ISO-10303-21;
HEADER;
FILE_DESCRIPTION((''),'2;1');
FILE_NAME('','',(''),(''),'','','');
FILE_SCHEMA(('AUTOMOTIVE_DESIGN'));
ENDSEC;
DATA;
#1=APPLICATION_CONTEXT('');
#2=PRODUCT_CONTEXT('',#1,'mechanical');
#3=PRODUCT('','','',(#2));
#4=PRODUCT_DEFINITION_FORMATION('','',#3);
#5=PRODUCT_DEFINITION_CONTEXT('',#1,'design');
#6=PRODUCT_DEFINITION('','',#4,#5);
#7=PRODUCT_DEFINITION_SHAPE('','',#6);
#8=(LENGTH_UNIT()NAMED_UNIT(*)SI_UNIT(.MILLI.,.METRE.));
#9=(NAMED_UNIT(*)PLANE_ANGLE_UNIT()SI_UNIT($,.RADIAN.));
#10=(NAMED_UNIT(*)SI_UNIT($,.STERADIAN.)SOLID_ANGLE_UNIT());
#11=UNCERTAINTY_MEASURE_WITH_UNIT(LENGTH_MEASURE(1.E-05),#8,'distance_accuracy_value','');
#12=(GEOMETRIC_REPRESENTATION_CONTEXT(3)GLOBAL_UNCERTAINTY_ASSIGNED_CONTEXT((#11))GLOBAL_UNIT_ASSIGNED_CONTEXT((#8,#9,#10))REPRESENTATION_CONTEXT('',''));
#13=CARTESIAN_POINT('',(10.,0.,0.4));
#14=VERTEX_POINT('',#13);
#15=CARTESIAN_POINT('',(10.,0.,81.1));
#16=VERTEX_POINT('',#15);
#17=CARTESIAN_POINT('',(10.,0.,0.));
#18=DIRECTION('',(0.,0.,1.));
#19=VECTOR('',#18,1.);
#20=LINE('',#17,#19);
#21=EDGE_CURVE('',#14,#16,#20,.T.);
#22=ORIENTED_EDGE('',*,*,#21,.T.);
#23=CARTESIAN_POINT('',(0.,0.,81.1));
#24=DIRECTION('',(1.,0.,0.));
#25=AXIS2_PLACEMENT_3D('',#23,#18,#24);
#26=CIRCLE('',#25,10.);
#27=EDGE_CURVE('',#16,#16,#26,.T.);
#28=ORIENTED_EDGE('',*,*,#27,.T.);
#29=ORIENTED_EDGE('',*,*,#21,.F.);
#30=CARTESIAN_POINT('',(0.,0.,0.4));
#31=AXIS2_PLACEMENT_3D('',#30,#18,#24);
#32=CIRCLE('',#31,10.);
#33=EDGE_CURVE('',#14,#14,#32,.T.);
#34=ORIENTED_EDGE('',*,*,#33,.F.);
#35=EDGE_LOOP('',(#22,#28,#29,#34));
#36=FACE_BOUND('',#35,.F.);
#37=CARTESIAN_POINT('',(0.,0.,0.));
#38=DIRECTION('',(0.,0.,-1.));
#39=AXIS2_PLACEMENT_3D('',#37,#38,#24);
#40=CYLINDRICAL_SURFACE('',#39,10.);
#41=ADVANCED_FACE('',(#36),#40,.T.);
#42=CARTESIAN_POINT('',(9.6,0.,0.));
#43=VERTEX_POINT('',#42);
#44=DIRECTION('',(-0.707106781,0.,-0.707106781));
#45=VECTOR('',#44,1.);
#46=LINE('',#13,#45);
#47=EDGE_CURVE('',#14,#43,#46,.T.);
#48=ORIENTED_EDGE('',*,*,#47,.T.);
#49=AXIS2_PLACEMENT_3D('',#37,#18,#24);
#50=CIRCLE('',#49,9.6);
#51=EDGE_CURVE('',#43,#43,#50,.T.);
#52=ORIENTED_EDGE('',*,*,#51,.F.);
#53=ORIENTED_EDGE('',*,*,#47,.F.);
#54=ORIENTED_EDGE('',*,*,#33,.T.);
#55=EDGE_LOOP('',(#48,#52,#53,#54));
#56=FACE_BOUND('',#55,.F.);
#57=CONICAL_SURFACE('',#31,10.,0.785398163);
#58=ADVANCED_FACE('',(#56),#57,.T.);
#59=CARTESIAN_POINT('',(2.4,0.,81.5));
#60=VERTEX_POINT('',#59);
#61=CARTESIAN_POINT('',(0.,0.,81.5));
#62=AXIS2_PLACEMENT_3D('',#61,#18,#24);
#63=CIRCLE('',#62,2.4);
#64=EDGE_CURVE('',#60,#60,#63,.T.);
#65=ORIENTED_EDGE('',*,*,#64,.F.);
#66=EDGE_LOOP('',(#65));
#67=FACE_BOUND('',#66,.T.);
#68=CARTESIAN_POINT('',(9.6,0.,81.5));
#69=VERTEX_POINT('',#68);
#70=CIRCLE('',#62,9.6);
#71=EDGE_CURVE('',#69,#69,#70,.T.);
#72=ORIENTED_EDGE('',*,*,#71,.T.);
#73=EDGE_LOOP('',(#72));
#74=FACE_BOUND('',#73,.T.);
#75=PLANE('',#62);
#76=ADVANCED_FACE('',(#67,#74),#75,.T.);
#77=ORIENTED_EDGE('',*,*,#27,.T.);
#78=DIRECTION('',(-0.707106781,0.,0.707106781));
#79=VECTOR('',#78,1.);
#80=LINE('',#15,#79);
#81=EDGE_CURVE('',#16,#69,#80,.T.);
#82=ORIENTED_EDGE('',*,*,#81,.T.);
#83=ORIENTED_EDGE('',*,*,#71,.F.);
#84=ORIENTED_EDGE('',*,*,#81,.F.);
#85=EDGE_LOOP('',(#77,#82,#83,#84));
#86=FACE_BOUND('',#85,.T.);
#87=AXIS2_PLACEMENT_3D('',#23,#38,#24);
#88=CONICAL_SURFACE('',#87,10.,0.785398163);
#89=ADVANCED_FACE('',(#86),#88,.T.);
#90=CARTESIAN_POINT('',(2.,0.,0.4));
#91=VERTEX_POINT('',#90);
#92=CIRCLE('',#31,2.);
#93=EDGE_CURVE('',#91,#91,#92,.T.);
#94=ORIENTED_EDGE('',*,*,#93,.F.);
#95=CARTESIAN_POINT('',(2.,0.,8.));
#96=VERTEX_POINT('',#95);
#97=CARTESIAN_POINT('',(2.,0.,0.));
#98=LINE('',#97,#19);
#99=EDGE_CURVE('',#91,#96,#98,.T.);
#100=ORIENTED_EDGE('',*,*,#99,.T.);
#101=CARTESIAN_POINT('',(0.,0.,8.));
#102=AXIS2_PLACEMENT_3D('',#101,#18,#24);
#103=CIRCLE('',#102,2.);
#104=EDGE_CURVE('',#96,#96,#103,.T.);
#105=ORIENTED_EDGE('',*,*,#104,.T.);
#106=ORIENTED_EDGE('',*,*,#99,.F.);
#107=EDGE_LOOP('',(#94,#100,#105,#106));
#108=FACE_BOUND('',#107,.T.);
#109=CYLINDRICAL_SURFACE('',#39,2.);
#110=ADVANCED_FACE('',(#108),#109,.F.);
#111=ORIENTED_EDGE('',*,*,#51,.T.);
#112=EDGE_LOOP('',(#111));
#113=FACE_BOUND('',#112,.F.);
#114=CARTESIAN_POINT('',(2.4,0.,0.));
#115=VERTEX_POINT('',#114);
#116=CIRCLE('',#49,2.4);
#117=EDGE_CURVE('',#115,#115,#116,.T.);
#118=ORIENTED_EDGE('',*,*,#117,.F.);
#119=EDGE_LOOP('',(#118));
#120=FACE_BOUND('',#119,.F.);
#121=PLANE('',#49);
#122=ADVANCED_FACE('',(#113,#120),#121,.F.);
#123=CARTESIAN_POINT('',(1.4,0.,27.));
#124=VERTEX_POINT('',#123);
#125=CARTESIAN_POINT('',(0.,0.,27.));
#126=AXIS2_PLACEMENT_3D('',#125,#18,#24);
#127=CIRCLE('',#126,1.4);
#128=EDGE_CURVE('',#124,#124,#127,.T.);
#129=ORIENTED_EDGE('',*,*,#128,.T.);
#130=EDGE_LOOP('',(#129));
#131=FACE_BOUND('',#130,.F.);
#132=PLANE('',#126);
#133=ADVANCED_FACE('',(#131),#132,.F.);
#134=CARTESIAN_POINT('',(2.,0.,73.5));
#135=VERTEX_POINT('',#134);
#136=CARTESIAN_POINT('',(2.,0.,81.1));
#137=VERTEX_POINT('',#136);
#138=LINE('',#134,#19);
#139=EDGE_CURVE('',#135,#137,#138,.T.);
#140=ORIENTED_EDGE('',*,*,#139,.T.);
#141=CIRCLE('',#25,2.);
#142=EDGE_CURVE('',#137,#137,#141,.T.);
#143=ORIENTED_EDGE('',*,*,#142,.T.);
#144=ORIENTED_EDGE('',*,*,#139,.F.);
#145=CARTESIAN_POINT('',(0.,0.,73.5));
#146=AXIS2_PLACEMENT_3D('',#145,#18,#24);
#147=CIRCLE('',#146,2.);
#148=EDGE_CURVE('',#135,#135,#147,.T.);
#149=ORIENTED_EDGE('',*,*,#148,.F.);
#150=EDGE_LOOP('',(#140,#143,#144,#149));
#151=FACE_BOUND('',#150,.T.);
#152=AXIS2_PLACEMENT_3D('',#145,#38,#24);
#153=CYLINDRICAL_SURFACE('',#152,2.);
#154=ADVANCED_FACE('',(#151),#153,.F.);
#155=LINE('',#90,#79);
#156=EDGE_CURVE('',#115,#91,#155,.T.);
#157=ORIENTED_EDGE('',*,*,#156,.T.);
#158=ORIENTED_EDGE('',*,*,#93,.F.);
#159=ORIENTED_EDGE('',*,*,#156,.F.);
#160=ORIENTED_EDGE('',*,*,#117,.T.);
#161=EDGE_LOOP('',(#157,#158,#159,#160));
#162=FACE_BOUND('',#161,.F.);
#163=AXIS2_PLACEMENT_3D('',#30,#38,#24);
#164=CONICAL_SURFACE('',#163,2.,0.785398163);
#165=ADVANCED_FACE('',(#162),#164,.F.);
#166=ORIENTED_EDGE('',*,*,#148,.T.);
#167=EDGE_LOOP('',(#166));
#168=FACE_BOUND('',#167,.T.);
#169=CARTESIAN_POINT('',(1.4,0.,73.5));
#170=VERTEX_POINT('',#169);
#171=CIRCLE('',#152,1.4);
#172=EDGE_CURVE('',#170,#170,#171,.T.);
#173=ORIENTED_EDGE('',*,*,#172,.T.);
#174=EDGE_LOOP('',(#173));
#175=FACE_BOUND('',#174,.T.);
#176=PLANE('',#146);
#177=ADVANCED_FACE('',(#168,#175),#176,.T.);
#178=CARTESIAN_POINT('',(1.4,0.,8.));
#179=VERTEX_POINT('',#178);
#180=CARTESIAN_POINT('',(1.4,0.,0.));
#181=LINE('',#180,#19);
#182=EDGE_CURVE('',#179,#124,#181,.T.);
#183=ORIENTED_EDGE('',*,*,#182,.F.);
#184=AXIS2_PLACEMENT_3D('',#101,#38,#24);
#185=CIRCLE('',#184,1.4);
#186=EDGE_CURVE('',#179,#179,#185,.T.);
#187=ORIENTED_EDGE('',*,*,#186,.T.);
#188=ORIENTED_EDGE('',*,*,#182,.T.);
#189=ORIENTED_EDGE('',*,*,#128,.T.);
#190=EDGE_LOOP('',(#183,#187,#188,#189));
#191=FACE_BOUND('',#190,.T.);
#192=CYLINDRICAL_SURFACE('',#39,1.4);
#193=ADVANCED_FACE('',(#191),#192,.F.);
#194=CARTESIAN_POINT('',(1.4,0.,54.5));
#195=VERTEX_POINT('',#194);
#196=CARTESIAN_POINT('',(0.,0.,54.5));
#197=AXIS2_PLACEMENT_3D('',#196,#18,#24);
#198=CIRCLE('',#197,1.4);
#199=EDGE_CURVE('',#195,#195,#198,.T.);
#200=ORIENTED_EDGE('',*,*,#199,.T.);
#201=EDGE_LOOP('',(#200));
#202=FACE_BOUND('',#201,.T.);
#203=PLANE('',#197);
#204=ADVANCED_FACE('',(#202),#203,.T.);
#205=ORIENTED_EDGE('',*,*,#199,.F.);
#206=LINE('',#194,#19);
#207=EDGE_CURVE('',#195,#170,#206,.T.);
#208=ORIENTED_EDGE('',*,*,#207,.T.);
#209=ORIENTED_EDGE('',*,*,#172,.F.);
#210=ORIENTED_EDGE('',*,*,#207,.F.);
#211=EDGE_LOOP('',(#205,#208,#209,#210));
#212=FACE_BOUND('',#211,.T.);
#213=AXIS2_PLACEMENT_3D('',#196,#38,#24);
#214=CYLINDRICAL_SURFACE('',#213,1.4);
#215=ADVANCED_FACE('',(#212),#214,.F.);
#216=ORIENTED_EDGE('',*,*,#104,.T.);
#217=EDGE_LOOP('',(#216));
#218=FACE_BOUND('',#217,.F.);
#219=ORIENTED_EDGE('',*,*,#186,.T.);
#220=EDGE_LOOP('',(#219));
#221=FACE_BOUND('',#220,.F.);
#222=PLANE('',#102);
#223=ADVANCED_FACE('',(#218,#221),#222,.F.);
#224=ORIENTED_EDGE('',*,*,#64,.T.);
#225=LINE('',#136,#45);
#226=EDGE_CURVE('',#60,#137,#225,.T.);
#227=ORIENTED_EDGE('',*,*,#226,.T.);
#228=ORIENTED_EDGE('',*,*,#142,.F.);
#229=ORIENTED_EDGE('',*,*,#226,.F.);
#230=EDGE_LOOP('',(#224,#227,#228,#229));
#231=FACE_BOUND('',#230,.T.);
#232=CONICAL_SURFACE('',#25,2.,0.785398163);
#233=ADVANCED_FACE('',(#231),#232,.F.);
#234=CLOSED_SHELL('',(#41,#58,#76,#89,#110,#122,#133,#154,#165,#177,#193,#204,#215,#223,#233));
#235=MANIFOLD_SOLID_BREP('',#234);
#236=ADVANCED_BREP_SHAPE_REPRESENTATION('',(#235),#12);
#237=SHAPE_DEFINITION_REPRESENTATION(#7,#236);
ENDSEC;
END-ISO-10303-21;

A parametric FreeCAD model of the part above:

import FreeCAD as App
import Part
import Sketcher
from FreeCAD import Vector
Q = App.Units.Quantity


def edges_at(feature, points):
    """Names of the edges that pass closest to the given points."""
    edges = feature.Shape.Edges
    near = lambda p: min(range(len(edges)), key=lambda i: edges[i].distToShape(Part.Vertex(*p))[0])
    return sorted({f"Edge{near(p) + 1}" for p in points})

doc = App.newDocument("Part")
body = doc.addObject("PartDesign::Body", "Body")

# Sketch on XY plane
sketch1 = doc.addObject("Sketcher::SketchObject", "Sketch")
body.addObject(sketch1)
sketch1.AttachmentSupport = (doc.XY_Plane, [""])
sketch1.MapMode = "FlatFace"
sketch1.addGeometry(Part.Circle(Vector(0, 0, 0), Vector(0, 0, 1), 1.4), False)
sketch1.addConstraint(Sketcher.Constraint("Coincident", 0, 3, -1, 1))
sketch1.addConstraint(Sketcher.Constraint("Diameter", 0, Q("2.8 mm")))
pad1 = doc.addObject("PartDesign::Pad", "Pad")
body.addObject(pad1)
pad1.Profile = sketch1
pad1.Length = 27
body2 = doc.addObject("PartDesign::Body", "Body001")

# Sketch on XY plane
sketch2 = doc.addObject("Sketcher::SketchObject", "Sketch001")
body2.addObject(sketch2)
sketch2.AttachmentSupport = (doc.getObject("XY_Plane001"), [""])
sketch2.MapMode = "FlatFace"
sketch2.addGeometry(Part.Circle(Vector(0, 0, 0), Vector(0, 0, 1), 2), False)
sketch2.addConstraint(Sketcher.Constraint("Coincident", 0, 3, -1, 1))
sketch2.addConstraint(Sketcher.Constraint("Diameter", 0, Q("4 mm")))
pad2 = doc.addObject("PartDesign::Pad", "Pad001")
body2.addObject(pad2)
pad2.Profile = sketch2
pad2.Length = 8
body3 = doc.addObject("PartDesign::Body", "Body002")

# Sketch on XY plane
sketch3 = doc.addObject("Sketcher::SketchObject", "Sketch002")
body3.addObject(sketch3)
sketch3.AttachmentSupport = (doc.getObject("XY_Plane002"), [""])
sketch3.MapMode = "FlatFace"
sketch3.AttachmentOffset = App.Placement(Vector(0, 0, 73.5), App.Rotation())
sketch3.addGeometry(Part.Circle(Vector(0, 0, 0), Vector(0, 0, 1), 2), False)
sketch3.addConstraint(Sketcher.Constraint("Coincident", 0, 3, -1, 1))
sketch3.addConstraint(Sketcher.Constraint("Diameter", 0, Q("4 mm")))
pad3 = doc.addObject("PartDesign::Pad", "Pad002")
body3.addObject(pad3)
pad3.Profile = sketch3
pad3.Length = 8
body4 = doc.addObject("PartDesign::Body", "Body003")
body4.AllowCompound = True

# Sketch on XY plane
sketch4 = doc.addObject("Sketcher::SketchObject", "Sketch003")
body4.addObject(sketch4)
sketch4.AttachmentSupport = (doc.getObject("XY_Plane003"), [""])
sketch4.MapMode = "FlatFace"
sketch4.AttachmentOffset = App.Placement(Vector(0, 0, 54.5), App.Rotation())
sketch4.addGeometry(Part.Circle(Vector(0, 0, 0), Vector(0, 0, 1), 1.4), False)
sketch4.addConstraint(Sketcher.Constraint("Coincident", 0, 3, -1, 1))
sketch4.addConstraint(Sketcher.Constraint("Diameter", 0, Q("2.8 mm")))
pad4 = doc.addObject("PartDesign::Pad", "Pad003")
body4.addObject(pad4)
pad4.Profile = sketch4
pad4.Length = 27
doc.recompute()

boolean = doc.addObject("PartDesign::Boolean", "Boolean")
body4.addObject(boolean)
boolean.Type = "Fuse"
boolean.addObjects([body])
doc.recompute()

boolean2 = doc.addObject("PartDesign::Boolean", "Boolean001")
body4.addObject(boolean2)
boolean2.Type = "Fuse"
boolean2.addObjects([body2])
doc.recompute()

boolean3 = doc.addObject("PartDesign::Boolean", "Boolean002")
body4.addObject(boolean3)
boolean3.Type = "Fuse"
boolean3.addObjects([body3])
body5 = doc.addObject("PartDesign::Body", "Body004")

# Sketch on XY plane
sketch5 = doc.addObject("Sketcher::SketchObject", "Sketch004")
body5.addObject(sketch5)
sketch5.AttachmentSupport = (doc.getObject("XY_Plane004"), [""])
sketch5.MapMode = "FlatFace"
sketch5.addGeometry(Part.Circle(Vector(0, 0, 0), Vector(0, 0, 1), 10), False)
sketch5.addConstraint(Sketcher.Constraint("Coincident", 0, 3, -1, 1))
sketch5.addConstraint(Sketcher.Constraint("Diameter", 0, Q("20 mm")))
pad5 = doc.addObject("PartDesign::Pad", "Pad004")
body5.addObject(pad5)
pad5.Profile = sketch5
pad5.Length = 81.5
doc.recompute()

boolean4 = doc.addObject("PartDesign::Boolean", "Boolean003")
body5.addObject(boolean4)
boolean4.Type = "Cut"
boolean4.addObjects([body4])
doc.recompute()

chamfer = doc.addObject("PartDesign::Chamfer", "Chamfer")
body5.addObject(chamfer)
chamfer.Base = (boolean4, edges_at(boolean4, [
    (-10, 0, 81.5),
    (-10, 0, 0),
    (-2, 0, 81.5),
    (-2, 0, 0),
]))
chamfer.Size = 0.4

doc.recompute()
